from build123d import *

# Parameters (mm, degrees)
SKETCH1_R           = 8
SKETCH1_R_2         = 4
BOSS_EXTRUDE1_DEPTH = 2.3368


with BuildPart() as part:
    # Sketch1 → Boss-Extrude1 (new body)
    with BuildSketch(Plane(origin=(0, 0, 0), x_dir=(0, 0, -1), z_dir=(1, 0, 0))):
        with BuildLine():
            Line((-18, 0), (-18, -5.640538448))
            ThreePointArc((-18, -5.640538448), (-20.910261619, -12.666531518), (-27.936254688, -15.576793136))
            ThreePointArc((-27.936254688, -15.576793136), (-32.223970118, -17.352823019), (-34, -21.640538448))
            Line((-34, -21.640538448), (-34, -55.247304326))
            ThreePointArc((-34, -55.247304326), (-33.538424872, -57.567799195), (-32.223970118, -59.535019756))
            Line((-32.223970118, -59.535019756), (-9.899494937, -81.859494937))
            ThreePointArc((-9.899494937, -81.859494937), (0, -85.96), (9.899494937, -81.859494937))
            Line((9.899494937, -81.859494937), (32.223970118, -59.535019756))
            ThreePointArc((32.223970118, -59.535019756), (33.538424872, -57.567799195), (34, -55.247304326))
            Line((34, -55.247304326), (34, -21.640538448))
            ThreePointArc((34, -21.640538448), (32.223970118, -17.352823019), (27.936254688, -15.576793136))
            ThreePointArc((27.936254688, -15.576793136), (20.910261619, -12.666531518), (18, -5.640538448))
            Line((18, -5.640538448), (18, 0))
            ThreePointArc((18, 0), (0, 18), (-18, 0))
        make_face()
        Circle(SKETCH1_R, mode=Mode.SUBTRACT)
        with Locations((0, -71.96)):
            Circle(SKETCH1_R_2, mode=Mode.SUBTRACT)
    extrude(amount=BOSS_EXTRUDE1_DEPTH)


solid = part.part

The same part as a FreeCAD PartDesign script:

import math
import FreeCAD as App
import Part
import Sketcher

V = App.Vector
Q = App.Units.Quantity

doc = App.newDocument("Part")
params = doc.addObject("Spreadsheet::Sheet", "Params")
for row, (alias, value) in enumerate([
    ("sketch1_diameter", "8 mm"),
    ("sketch1_diameter2", "16 mm"),
    ("sketch1_radius", "14 mm"),
    ("sketch1_radius2", "18 mm"),
    ("pad1_length", "2.3368 mm"),
], start=1):
    params.set(f"A{row}", alias)
    params.set(f"B{row}", "=" + value)
    params.setAlias(f"B{row}", alias)

body = doc.addObject("PartDesign::Body", "Body")

# Sketch on YZ plane
sketch1 = body.newObject("Sketcher::SketchObject", "Sketch")
sketch1.AttachmentSupport = (doc.getObject("YZ_Plane"), [""])
sketch1.MapMode = "FlatFace"
sketch1.addGeometry(Part.LineSegment(V(0, 18, 0), V(-5.640538, 18, 0)), False)
sketch1.addGeometry(Part.ArcOfCircle(Part.Circle(V(-5.640538, 27.936255, 0), V(0, 0, 1), 9.936255), math.radians(180), math.radians(270)), False)
sketch1.addGeometry(Part.ArcOfCircle(Part.Circle(V(-21.640538, 27.936255, 0), V(0, 0, 1), 6.063745), math.radians(0), math.radians(90)), False)
sketch1.addGeometry(Part.LineSegment(V(-21.640538, 34, 0), V(-55.247304, 34, 0)), False)
sketch1.addGeometry(Part.ArcOfCircle(Part.Circle(V(-55.247304, 27.936255, 0), V(0, 0, 1), 6.063745), math.radians(90), math.radians(135)), False)
sketch1.addGeometry(Part.LineSegment(V(-59.53502, 32.22397, 0), V(-81.859495, 9.899495, 0)), False)
sketch1.addGeometry(Part.ArcOfCircle(Part.Circle(V(-71.96, 0, 0), V(0, 0, 1), 14), math.radians(135), math.radians(225)), False)
sketch1.addGeometry(Part.LineSegment(V(-81.859495, -9.899495, 0), V(-59.53502, -32.22397, 0)), False)
sketch1.addGeometry(Part.ArcOfCircle(Part.Circle(V(-55.247304, -27.936255, 0), V(0, 0, 1), 6.063745), math.radians(-135), math.radians(-90)), False)
sketch1.addGeometry(Part.LineSegment(V(-55.247304, -34, 0), V(-21.640538, -34, 0)), False)
sketch1.addGeometry(Part.ArcOfCircle(Part.Circle(V(-21.640538, -27.936255, 0), V(0, 0, 1), 6.063745), math.radians(-90), math.radians(0)), False)
sketch1.addGeometry(Part.ArcOfCircle(Part.Circle(V(-5.640538, -27.936255, 0), V(0, 0, 1), 9.936255), math.radians(90), math.radians(180)), False)
sketch1.addGeometry(Part.LineSegment(V(-5.640538, -18, 0), V(0, -18, 0)), False)
sketch1.addGeometry(Part.ArcOfCircle(Part.Circle(V(0, 0, 0), V(0, 0, 1), 18), math.radians(-90), math.radians(90)), False)
sketch1.addGeometry(Part.Circle(V(-71.96, 0, 0), V(0, 0, 1), 4), False)
sketch1.addGeometry(Part.Circle(V(0, 0, 0), V(0, 0, 1), 8), False)
sketch1.addConstraint(Sketcher.Constraint("Tangent", 0, 2, 1, 2))
sketch1.addConstraint(Sketcher.Constraint("Tangent", 1, 1, 2, 1))
sketch1.addConstraint(Sketcher.Constraint("Tangent", 2, 2, 3, 1))
sketch1.addConstraint(Sketcher.Constraint("Tangent", 3, 2, 4, 1))
sketch1.addConstraint(Sketcher.Constraint("Tangent", 4, 2, 5, 1))
sketch1.addConstraint(Sketcher.Constraint("Tangent", 5, 2, 6, 1))
sketch1.addConstraint(Sketcher.Constraint("Tangent", 6, 2, 7, 1))
sketch1.addConstraint(Sketcher.Constraint("Tangent", 7, 2, 8, 1))
sketch1.addConstraint(Sketcher.Constraint("Tangent", 8, 2, 9, 1))
sketch1.addConstraint(Sketcher.Constraint("Tangent", 9, 2, 10, 1))
sketch1.addConstraint(Sketcher.Constraint("Tangent", 10, 2, 11, 2))
sketch1.addConstraint(Sketcher.Constraint("Tangent", 11, 1, 12, 1))
sketch1.addConstraint(Sketcher.Constraint("Tangent", 12, 2, 13, 1))
sketch1.addConstraint(Sketcher.Constraint("Tangent", 13, 2, 0, 1))
sketch1.addConstraint(Sketcher.Constraint("Horizontal", 0))
sketch1.addConstraint(Sketcher.Constraint("Horizontal", 3))
sketch1.addConstraint(Sketcher.Constraint("Horizontal", 9))
sketch1.addConstraint(Sketcher.Constraint("Horizontal", 12))
sketch1.addConstraint(Sketcher.Constraint("Coincident", 13, 3, -1, 1))
sketch1.addConstraint(Sketcher.Constraint("Coincident", 15, 3, -1, 1))
sketch1.addConstraint(Sketcher.Constraint("Coincident", 14, 3, 6, 3))
sketch1.addConstraint(Sketcher.Constraint("Equal", 2, 4))
sketch1.addConstraint(Sketcher.Constraint("Equal", 4, 8))
sketch1.addConstraint(Sketcher.Constraint("Equal", 8, 10))
sketch1.addConstraint(Sketcher.Constraint("Equal", 1, 11))
sketch1.addConstraint(Sketcher.Constraint("Symmetric", 4, 3, 8, 3, -1))
sketch1.addConstraint(Sketcher.Constraint("PointOnObject", 6, 3, -1))
sketch1.addConstraint(Sketcher.Constraint("Perpendicular", 5, 7))
sketch1.addConstraint(Sketcher.Constraint("Horizontal", 1, 3, 2, 3))
sketch1.addConstraint(Sketcher.Constraint("Vertical", 2, 3, 10, 3))
sketch1.addConstraint(Sketcher.Constraint("Diameter", 14, Q("8 mm")))
sketch1.addConstraint(Sketcher.Constraint("Diameter", 15, Q("16 mm")))
sketch1.addConstraint(Sketcher.Constraint("Radius", 6, Q("14 mm")))
sketch1.addConstraint(Sketcher.Constraint("Radius", 13, Q("18 mm")))
sketch1.addConstraint(Sketcher.Constraint("DistanceY", -1, 1, 2, 2, Q("34 mm")))
sketch1.addConstraint(Sketcher.Constraint("DistanceX", 6, 3, -1, 1, Q("71.96 mm")))
sketch1.addConstraint(Sketcher.Constraint("Radius", 1, Q("9.936255 mm")))
sketch1.addConstraint(Sketcher.Constraint("DistanceX", 0, 2, 0, 1, Q("5.640538 mm")))
sketch1.setExpression("Constraints[30]", "Params.sketch1_diameter")
sketch1.setExpression("Constraints[31]", "Params.sketch1_diameter2")
sketch1.setExpression("Constraints[32]", "Params.sketch1_radius")
sketch1.setExpression("Constraints[33]", "Params.sketch1_radius2")
pad1 = body.newObject("PartDesign::Pad", "Pad")
pad1.Profile = sketch1
pad1.setExpression("Length", "Params.pad1_length")

doc.recompute()
